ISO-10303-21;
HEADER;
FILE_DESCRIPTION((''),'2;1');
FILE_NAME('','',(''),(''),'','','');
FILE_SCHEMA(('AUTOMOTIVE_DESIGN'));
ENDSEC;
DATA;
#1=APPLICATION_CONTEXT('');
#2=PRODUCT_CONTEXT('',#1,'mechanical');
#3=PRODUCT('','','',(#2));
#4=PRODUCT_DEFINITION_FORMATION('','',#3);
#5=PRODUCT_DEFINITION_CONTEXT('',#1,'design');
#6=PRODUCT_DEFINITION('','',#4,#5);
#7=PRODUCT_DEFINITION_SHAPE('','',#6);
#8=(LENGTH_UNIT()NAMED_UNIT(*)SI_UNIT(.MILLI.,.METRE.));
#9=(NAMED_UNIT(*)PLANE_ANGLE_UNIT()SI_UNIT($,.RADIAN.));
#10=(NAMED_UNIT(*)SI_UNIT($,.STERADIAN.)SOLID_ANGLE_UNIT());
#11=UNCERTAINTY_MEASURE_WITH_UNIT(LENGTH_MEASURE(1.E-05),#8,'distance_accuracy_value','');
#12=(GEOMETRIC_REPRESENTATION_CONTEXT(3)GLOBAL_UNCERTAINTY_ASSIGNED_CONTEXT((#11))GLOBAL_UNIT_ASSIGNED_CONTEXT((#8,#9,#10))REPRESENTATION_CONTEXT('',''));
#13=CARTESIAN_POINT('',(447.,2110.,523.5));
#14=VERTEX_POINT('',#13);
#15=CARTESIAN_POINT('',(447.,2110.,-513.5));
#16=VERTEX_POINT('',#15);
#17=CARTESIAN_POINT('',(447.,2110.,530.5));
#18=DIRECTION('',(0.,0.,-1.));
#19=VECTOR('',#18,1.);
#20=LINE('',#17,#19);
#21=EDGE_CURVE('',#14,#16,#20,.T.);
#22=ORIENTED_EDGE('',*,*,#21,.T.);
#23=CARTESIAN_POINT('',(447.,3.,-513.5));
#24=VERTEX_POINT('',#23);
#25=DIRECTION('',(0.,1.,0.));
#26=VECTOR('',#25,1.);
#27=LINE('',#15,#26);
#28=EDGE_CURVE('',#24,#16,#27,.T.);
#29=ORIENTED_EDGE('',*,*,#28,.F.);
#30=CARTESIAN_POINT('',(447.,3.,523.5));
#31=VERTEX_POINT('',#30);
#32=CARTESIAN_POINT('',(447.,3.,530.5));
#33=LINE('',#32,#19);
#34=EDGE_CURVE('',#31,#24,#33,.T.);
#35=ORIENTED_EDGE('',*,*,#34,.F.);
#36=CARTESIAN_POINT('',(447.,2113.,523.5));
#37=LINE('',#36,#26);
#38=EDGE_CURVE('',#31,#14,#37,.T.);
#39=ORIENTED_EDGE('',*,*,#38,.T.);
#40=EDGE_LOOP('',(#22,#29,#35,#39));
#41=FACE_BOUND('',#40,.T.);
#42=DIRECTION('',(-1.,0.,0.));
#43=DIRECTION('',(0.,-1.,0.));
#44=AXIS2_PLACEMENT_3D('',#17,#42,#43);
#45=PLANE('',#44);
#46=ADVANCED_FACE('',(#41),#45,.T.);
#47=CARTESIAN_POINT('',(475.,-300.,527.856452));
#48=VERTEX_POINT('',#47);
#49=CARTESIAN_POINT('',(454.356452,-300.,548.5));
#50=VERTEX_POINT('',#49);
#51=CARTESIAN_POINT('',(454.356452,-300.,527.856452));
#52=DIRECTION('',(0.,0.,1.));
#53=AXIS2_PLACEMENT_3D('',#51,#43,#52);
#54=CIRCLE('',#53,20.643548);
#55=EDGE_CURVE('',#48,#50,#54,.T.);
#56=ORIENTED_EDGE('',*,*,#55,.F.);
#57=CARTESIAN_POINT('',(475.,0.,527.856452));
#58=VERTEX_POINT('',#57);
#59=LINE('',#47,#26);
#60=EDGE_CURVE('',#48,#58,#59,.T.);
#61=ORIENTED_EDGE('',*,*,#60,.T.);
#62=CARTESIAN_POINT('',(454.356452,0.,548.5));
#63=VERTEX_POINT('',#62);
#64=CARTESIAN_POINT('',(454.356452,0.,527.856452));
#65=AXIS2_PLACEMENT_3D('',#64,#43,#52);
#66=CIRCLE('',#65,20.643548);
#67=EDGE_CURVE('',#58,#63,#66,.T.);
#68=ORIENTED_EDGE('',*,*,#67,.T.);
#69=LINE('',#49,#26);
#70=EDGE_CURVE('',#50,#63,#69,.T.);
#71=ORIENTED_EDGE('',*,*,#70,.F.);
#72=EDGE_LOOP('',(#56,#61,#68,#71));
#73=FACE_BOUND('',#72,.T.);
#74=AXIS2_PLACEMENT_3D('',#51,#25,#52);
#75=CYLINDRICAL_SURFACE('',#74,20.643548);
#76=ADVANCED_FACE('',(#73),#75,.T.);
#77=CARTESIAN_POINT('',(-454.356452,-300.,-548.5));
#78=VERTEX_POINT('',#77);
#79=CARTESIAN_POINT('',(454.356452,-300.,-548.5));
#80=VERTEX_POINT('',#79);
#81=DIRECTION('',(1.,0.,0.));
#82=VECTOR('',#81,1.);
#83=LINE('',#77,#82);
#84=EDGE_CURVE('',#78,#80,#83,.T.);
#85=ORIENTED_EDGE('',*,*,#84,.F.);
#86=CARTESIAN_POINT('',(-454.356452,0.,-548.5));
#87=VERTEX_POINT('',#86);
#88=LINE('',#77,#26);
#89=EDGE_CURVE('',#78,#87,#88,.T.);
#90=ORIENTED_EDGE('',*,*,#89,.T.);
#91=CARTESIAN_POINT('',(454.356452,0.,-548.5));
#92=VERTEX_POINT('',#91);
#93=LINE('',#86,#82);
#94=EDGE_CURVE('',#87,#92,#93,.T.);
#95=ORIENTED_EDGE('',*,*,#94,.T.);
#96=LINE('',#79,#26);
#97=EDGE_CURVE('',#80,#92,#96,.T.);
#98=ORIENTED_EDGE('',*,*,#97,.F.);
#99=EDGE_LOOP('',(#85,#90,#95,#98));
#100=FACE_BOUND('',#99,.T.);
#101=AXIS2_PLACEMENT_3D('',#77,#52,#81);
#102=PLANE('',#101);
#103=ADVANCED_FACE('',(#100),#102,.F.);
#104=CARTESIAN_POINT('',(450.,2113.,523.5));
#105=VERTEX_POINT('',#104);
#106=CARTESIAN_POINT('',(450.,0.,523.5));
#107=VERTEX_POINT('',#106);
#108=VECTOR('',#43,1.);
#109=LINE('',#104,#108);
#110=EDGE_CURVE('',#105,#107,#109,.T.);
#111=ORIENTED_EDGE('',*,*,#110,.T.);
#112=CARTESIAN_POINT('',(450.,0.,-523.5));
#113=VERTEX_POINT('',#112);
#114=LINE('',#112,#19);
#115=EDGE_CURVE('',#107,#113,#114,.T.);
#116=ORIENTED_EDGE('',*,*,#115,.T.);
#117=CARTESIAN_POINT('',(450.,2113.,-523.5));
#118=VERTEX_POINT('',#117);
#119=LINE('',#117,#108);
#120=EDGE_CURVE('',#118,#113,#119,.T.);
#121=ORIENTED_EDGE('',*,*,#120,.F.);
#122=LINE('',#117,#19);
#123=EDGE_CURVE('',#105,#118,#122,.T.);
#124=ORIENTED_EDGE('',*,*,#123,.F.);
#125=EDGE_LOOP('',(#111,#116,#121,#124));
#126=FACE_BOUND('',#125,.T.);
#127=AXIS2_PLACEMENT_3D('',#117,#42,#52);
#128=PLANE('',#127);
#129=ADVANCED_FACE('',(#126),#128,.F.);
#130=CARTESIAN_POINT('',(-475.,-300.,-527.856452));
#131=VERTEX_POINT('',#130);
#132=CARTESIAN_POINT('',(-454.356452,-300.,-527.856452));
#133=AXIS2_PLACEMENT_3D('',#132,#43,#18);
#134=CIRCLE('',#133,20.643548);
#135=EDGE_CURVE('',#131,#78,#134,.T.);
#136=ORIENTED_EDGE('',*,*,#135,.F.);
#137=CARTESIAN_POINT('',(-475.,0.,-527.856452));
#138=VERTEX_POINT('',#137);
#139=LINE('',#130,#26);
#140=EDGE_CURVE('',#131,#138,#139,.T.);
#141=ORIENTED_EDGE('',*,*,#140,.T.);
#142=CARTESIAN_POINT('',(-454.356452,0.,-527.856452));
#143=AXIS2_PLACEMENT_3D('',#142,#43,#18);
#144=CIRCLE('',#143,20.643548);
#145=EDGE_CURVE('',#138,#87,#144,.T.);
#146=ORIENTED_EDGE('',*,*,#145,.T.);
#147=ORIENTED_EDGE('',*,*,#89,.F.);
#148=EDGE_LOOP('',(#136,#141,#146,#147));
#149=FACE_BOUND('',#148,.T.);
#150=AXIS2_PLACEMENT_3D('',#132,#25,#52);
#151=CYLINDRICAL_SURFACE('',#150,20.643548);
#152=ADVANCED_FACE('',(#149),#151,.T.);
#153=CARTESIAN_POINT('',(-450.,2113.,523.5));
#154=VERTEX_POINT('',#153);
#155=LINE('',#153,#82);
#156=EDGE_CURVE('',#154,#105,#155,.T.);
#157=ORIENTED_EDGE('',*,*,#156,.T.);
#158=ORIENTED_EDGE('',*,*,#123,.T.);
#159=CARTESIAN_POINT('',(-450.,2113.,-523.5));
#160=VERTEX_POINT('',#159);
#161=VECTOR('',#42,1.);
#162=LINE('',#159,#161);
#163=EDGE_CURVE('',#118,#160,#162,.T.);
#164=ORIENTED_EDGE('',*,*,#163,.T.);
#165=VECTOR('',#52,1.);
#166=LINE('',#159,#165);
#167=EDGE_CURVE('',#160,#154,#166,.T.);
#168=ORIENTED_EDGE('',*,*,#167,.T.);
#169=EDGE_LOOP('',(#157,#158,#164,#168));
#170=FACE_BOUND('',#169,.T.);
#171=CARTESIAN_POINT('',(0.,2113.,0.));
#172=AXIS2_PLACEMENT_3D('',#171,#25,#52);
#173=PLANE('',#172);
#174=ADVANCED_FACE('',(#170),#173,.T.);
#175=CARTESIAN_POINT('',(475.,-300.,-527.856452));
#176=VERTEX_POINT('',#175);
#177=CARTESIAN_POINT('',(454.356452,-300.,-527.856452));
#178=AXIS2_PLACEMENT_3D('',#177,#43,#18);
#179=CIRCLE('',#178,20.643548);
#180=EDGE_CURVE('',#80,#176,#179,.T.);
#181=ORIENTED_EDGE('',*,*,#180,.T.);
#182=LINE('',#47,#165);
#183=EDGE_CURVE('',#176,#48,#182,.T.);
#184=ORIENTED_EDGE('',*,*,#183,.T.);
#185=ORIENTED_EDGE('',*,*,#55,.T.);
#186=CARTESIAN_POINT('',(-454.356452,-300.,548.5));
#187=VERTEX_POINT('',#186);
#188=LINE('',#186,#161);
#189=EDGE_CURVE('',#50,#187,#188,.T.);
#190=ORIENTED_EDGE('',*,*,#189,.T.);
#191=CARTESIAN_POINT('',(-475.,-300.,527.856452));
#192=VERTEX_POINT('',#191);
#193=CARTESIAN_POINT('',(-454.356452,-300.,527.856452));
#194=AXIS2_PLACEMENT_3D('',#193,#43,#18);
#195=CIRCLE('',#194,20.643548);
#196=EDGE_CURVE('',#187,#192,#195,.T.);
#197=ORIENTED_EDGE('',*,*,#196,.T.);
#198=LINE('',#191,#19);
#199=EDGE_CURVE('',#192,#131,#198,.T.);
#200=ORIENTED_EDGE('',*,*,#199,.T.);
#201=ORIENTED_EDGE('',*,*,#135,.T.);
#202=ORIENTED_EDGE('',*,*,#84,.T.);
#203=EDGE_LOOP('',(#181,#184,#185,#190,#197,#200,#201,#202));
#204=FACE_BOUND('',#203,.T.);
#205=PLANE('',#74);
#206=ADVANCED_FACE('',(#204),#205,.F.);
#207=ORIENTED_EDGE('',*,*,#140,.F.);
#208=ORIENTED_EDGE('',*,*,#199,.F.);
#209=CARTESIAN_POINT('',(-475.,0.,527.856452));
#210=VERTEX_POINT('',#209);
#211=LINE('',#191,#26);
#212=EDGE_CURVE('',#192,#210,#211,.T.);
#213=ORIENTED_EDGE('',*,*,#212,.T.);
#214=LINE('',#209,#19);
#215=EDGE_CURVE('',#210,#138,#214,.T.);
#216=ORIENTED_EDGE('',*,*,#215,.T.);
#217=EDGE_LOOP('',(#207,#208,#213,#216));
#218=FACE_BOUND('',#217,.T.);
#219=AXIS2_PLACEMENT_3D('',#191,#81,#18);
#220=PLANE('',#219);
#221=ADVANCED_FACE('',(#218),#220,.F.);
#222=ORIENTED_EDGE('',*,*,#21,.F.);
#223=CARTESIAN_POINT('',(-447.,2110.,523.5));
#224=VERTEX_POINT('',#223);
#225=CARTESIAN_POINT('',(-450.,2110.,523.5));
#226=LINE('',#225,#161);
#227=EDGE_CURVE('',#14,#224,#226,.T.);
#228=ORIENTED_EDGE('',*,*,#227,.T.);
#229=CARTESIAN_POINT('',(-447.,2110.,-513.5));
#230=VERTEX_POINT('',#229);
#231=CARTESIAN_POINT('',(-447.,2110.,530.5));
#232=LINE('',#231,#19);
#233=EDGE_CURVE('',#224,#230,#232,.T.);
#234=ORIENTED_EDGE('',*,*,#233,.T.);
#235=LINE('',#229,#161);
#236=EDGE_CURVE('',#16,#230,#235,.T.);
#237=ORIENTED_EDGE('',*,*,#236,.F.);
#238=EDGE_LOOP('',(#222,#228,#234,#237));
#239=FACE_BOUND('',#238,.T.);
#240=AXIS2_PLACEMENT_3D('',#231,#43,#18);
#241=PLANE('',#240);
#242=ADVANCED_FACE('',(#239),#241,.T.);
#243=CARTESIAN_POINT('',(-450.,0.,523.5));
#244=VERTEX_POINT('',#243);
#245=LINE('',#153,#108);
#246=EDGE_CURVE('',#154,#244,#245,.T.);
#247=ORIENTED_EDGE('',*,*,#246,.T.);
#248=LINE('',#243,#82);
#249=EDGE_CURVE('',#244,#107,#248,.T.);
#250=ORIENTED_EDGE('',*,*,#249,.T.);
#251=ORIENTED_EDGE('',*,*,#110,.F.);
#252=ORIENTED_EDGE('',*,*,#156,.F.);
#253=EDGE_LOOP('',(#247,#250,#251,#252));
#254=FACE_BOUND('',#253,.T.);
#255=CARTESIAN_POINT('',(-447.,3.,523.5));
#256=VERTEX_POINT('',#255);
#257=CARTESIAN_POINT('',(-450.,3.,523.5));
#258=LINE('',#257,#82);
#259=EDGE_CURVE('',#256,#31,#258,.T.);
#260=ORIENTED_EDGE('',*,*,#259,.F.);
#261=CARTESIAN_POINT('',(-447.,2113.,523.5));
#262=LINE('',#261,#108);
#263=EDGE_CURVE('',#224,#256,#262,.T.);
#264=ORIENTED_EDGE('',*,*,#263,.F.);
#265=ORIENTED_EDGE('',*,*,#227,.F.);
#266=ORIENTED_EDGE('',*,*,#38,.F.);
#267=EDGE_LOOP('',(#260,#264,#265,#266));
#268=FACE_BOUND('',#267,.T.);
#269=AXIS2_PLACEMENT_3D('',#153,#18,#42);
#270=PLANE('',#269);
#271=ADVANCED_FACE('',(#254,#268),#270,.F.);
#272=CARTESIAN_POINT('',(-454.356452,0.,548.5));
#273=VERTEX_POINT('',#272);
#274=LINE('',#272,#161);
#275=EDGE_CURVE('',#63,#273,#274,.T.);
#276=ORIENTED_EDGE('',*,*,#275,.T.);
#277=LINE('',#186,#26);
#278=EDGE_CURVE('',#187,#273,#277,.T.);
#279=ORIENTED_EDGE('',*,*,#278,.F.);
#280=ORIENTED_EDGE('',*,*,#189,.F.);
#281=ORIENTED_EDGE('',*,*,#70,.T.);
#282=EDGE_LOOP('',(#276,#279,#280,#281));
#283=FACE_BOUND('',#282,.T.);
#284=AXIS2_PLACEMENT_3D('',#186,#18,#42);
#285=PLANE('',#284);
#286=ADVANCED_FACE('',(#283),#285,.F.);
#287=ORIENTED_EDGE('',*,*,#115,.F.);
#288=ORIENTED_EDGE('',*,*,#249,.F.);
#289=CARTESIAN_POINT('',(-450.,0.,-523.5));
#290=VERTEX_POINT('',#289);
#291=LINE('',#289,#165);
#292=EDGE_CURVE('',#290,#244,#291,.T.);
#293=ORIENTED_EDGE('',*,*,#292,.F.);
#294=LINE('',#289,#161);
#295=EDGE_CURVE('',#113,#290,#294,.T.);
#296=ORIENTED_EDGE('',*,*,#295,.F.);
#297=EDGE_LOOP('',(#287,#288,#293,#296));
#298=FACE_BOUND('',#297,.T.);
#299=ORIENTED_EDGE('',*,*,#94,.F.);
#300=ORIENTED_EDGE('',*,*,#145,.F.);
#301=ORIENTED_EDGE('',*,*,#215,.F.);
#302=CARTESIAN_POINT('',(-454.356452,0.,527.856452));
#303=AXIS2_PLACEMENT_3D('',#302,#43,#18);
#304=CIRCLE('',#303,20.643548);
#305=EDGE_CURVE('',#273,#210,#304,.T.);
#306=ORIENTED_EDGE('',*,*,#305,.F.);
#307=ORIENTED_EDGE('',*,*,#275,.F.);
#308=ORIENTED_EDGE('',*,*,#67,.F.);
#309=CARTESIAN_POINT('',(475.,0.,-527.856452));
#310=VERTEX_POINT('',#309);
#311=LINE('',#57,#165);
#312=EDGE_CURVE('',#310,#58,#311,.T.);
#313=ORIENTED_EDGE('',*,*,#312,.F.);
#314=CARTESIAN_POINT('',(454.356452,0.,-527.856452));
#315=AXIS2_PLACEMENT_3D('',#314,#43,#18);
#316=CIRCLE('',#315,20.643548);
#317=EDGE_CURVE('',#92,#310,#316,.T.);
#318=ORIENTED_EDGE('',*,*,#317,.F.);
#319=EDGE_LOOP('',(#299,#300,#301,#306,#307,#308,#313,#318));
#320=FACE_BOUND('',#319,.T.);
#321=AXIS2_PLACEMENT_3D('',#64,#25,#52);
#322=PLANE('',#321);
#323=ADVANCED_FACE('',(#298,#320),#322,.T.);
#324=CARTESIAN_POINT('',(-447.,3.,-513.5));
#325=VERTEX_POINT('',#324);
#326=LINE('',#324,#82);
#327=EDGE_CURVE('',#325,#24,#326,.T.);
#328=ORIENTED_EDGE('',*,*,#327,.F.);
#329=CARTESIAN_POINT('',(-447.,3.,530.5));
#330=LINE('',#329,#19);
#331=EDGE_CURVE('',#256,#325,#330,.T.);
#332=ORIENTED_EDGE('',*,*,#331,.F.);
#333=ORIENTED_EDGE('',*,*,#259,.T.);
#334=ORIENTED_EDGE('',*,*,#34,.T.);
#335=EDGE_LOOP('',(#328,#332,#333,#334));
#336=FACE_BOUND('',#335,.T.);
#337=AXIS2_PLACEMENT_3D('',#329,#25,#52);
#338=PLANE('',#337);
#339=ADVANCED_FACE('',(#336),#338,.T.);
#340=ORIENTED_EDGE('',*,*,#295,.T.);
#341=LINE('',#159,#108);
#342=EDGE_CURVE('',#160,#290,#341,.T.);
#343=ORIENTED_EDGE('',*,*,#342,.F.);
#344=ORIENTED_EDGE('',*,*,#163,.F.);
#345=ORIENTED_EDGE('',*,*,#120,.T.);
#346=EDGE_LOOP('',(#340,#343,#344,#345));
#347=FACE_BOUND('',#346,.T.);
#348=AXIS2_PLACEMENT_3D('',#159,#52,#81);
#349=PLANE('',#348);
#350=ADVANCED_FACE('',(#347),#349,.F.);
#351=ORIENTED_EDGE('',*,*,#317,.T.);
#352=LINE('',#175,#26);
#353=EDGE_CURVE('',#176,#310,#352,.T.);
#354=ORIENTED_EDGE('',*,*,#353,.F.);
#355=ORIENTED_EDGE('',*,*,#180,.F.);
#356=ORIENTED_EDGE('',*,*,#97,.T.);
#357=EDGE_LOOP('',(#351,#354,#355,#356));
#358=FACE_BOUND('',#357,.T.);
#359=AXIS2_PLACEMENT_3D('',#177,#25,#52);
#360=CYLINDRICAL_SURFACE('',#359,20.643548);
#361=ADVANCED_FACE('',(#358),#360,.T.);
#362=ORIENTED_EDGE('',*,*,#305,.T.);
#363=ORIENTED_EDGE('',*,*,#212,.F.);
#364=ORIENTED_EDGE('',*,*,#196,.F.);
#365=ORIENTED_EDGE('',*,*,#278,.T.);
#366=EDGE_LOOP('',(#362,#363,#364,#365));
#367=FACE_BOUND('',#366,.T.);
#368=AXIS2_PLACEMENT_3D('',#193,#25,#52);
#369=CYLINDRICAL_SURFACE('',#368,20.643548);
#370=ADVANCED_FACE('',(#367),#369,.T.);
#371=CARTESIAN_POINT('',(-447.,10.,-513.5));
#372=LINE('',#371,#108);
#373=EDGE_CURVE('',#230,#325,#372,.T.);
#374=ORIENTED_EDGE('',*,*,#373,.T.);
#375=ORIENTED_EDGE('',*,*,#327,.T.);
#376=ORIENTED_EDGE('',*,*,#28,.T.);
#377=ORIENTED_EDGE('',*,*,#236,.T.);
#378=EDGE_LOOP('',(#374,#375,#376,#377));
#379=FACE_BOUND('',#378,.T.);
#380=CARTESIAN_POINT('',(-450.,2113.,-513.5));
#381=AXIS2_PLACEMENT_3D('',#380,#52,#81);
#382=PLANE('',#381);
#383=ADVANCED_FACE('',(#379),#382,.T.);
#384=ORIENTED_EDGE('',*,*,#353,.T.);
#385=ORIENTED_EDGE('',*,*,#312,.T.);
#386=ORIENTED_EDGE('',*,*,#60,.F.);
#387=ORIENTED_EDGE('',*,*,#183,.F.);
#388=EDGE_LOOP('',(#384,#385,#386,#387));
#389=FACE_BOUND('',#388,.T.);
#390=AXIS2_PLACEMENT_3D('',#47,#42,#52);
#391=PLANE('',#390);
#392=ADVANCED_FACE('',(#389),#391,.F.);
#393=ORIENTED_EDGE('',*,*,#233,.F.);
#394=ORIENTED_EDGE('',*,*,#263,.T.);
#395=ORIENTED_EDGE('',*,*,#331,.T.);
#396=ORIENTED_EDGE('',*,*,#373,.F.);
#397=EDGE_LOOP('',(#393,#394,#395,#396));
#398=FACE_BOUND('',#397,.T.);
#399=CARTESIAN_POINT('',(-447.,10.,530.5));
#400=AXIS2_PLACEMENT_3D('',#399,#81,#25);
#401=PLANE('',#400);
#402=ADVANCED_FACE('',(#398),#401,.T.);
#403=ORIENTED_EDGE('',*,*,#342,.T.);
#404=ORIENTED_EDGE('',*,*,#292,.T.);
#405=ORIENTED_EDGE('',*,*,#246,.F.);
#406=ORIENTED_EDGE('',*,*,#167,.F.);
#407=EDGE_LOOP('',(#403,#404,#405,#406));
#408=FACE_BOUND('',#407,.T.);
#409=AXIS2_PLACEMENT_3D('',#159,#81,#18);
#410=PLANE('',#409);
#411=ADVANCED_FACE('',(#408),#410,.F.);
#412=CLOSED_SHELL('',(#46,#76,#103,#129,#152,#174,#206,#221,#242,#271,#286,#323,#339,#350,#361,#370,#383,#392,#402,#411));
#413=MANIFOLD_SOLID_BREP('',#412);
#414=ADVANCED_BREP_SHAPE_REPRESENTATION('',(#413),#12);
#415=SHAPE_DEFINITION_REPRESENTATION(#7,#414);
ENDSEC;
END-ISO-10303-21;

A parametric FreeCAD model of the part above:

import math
import FreeCAD as App
import Part
import Sketcher
from FreeCAD import Vector
Q = App.Units.Quantity


def faces_at(feature, points):
    """Names of the faces that lie closest to the given points."""
    faces = feature.Shape.Faces
    near = lambda p: min(range(len(faces)), key=lambda i: faces[i].distToShape(Part.Vertex(*p))[0])
    return sorted({f"Face{near(p) + 1}" for p in points})


def add_polygon(sketch, points):
    """Adds a closed chain of lines whose ends are joined by coincident constraints."""
    first, n = sketch.GeometryCount, len(points)
    for a, b in zip(points, points[1:] + points[:1]):
        sketch.addGeometry(Part.LineSegment(App.Vector(*a, 0), App.Vector(*b, 0)), False)
    for i in range(n):
        sketch.addConstraint(Sketcher.Constraint("Coincident", first + i, 2, first + (i + 1) % n, 1))

doc = App.newDocument("Part")
params = doc.addObject("Spreadsheet::Sheet", "Params")
for row, (alias, value) in enumerate([
    ("sketch1_width", "900 mm"),
    ("sketch1_height", "1047 mm"),
    ("pad1_length", "2113 mm"),
    ("thickness_wall", "10 mm"),
    ("sketch2_width", "880 mm"),
    ("sketch2_height", "2093 mm"),
    ("pad2_length", "5 mm"),
    ("pad3_length", "300 mm"),
    ("sketch4_width", "894 mm"),
    ("sketch4_height", "2107 mm"),
    ("pocket1_length", "1044 mm"),
], start=1):
    params.set(f"A{row}", alias)
    params.set(f"B{row}", "=" + value)
    params.setAlias(f"B{row}", alias)

body = doc.addObject("PartDesign::Body", "Body")

sketch1 = doc.addObject("Sketcher::SketchObject", "Sketch")
body.addObject(sketch1)
sketch1.AttachmentSupport = (doc.XZ_Plane, [""])
sketch1.MapMode = "FlatFace"
add_polygon(sketch1, [(-450, -524), (-450, 524), (450, 524), (450, -524)])
sketch1.addConstraint([
    Sketcher.Constraint("Vertical", 0),
    Sketcher.Constraint("Horizontal", 1),
    Sketcher.Constraint("Vertical", 2),
    Sketcher.Constraint("Horizontal", 3),
    Sketcher.Constraint("Symmetric", 0, 2, 2, 2, -1, 1),
    Sketcher.Constraint("DistanceX", 1, 1, 1, 2, Q("900 mm")),
    Sketcher.Constraint("DistanceY", 0, 1, 0, 2, Q("1047 mm")),
])
sketch1.setExpression("Constraints[9]", "Params.sketch1_width")
sketch1.setExpression("Constraints[10]", "Params.sketch1_height")
pad1 = doc.addObject("PartDesign::Pad", "Pad")
body.addObject(pad1)
pad1.Profile = sketch1
pad1.setExpression("Length", "Params.pad1_length")
pad1.Reversed = True
doc.recompute()

thickness = doc.addObject("PartDesign::Thickness", "Thickness")
body.addObject(thickness)
thickness.Base = (pad1, faces_at(pad1, [(0, 1056.5, 523.5)]))
thickness.setExpression("Value", "Params.thickness_wall")
thickness.Reversed = True
thickness.Join = "Intersection"

sketch2 = doc.addObject("Sketcher::SketchObject", "Sketch001")
body.addObject(sketch2)
sketch2.AttachmentSupport = (doc.XY_Plane, [""])
sketch2.MapMode = "FlatFace"
sketch2.AttachmentOffset = App.Placement(Vector(0, 0, 523.5), App.Rotation())
add_polygon(sketch2, [(-440, 2103), (-440, 10), (440, 10), (440, 2103)])
sketch2.addConstraint([
    Sketcher.Constraint("Vertical", 0),
    Sketcher.Constraint("Horizontal", 1),
    Sketcher.Constraint("Vertical", 2),
    Sketcher.Constraint("Horizontal", 3),
    Sketcher.Constraint("DistanceX", 1, 1, 1, 2, Q("880 mm")),
    Sketcher.Constraint("DistanceY", 0, 2, 0, 1, Q("2093 mm")),
    Sketcher.Constraint("DistanceX", 0, 2, -1, 1, Q("440 mm")),
    Sketcher.Constraint("DistanceY", -1, 1, 0, 2, Q("10 mm")),
])
sketch2.setExpression("Constraints[8]", "Params.sketch2_width")
sketch2.setExpression("Constraints[9]", "Params.sketch2_height")
pad2 = doc.addObject("PartDesign::Pad", "Pad001")
body.addObject(pad2)
pad2.Profile = sketch2
pad2.setExpression("Length", "Params.pad2_length")
pad2.Reversed = True

sketch3 = doc.addObject("Sketcher::SketchObject", "Sketch002")
body.addObject(sketch3)
sketch3.AttachmentSupport = (doc.XZ_Plane, [""])
sketch3.MapMode = "FlatFace"
sketch3.addGeometry([
    Part.LineSegment(Vector(454, 548, 0), Vector(-454, 548, 0)),
    Part.ArcOfCircle(Part.Circle(Vector(-454, 528, 0), Vector(0, 0, 1), 21), math.radians(90), math.radians(180)),
    Part.LineSegment(Vector(-475, 528, 0), Vector(-475, -528, 0)),
    Part.ArcOfCircle(Part.Circle(Vector(-454, -528, 0), Vector(0, 0, 1), 21), math.radians(180), math.radians(270)),
    Part.LineSegment(Vector(-454, -548, 0), Vector(454, -548, 0)),
    Part.ArcOfCircle(Part.Circle(Vector(454, -528, 0), Vector(0, 0, 1), 21), math.radians(-90), math.radians(0)),
    Part.LineSegment(Vector(475, -528, 0), Vector(475, 528, 0)),
    Part.ArcOfCircle(Part.Circle(Vector(454, 528, 0), Vector(0, 0, 1), 21), math.radians(0), math.radians(90)),
], False)
sketch3.addConstraint([
    Sketcher.Constraint("Tangent", 0, 2, 1, 1),
    Sketcher.Constraint("Tangent", 1, 2, 2, 1),
    Sketcher.Constraint("Tangent", 2, 2, 3, 1),
    Sketcher.Constraint("Tangent", 3, 2, 4, 1),
    Sketcher.Constraint("Tangent", 4, 2, 5, 1),
    Sketcher.Constraint("Tangent", 5, 2, 6, 1),
    Sketcher.Constraint("Tangent", 6, 2, 7, 1),
    Sketcher.Constraint("Tangent", 7, 2, 0, 1),
    Sketcher.Constraint("Horizontal", 0),
    Sketcher.Constraint("Vertical", 2),
    Sketcher.Constraint("Horizontal", 4),
    Sketcher.Constraint("Vertical", 6),
    Sketcher.Constraint("Equal", 1, 3),
    Sketcher.Constraint("Equal", 3, 5),
    Sketcher.Constraint("Equal", 5, 7),
    Sketcher.Constraint("Symmetric", 1, 3, 5, 3, -1, 1),
    Sketcher.Constraint("DistanceX", 1, 2, -1, 1, Q("475 mm")),
    Sketcher.Constraint("DistanceY", -1, 1, 0, 2, Q("548.5 mm")),
    Sketcher.Constraint("Radius", 1, Q("20.643548 mm")),
])
pad3 = doc.addObject("PartDesign::Pad", "Pad002")
body.addObject(pad3)
pad3.Profile = sketch3
pad3.setExpression("Length", "Params.pad3_length")

sketch4 = doc.addObject("Sketcher::SketchObject", "Sketch003")
body.addObject(sketch4)
sketch4.AttachmentSupport = (doc.XY_Plane, [""])
sketch4.MapMode = "FlatFace"
sketch4.AttachmentOffset = App.Placement(Vector(0, 0, -513.5), App.Rotation())
add_polygon(sketch4, [(-447, 2110), (-447, 3), (447, 3), (447, 2110)])
sketch4.addConstraint([
    Sketcher.Constraint("Vertical", 0),
    Sketcher.Constraint("Horizontal", 1),
    Sketcher.Constraint("Vertical", 2),
    Sketcher.Constraint("Horizontal", 3),
    Sketcher.Constraint("DistanceX", 1, 1, 1, 2, Q("894 mm")),
    Sketcher.Constraint("DistanceY", 0, 2, 0, 1, Q("2107 mm")),
    Sketcher.Constraint("DistanceX", 0, 2, -1, 1, Q("447 mm")),
    Sketcher.Constraint("DistanceY", -1, 1, 0, 2, Q("3 mm")),
])
sketch4.setExpression("Constraints[8]", "Params.sketch4_width")
sketch4.setExpression("Constraints[9]", "Params.sketch4_height")
pocket1 = doc.addObject("PartDesign::Pocket", "Pocket")
body.addObject(pocket1)
pocket1.Profile = sketch4
pocket1.setExpression("Length", "Params.pocket1_length")
pocket1.Reversed = True

doc.recompute()
